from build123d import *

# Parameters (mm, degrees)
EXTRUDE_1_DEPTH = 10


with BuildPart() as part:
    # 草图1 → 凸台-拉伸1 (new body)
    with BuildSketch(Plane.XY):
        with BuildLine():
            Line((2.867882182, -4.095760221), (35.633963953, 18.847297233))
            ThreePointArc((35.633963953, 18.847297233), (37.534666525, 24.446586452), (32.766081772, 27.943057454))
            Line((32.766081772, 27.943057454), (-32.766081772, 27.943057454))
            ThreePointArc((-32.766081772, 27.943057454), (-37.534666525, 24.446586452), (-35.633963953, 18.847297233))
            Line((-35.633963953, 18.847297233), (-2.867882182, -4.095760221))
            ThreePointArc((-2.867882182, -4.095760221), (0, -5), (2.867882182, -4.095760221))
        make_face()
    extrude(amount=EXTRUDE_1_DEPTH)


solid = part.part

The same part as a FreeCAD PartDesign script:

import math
import FreeCAD as App
import Part
import Sketcher
Q = App.Units.Quantity

doc = App.newDocument("Part")
params = doc.addObject("Spreadsheet::Sheet", "Params")
for row, (alias, value) in enumerate([
    ("sketch1_radius", "5 mm"),
    ("sketch1_length", "40 mm"),
    ("pad1_length", "10 mm"),
], start=1):
    params.set(f"A{row}", alias)
    params.set(f"B{row}", "=" + value)
    params.setAlias(f"B{row}", alias)

body = doc.addObject("PartDesign::Body", "Body")

# Sketch on XY plane
sketch1 = body.newObject("Sketcher::SketchObject", "Sketch")
sketch1.AttachmentSupport = (doc.getObject("XY_Plane"), [""])
sketch1.MapMode = "FlatFace"
sketch1.addGeometry([
    Part.LineSegment(App.Vector(2.9, -4.1, 0), App.Vector(35.6, 18.8, 0)),  # 0
    Part.ArcOfCircle(Part.Circle(App.Vector(32.8, 22.9, 0), App.Vector(0, 0, 1), 5), math.radians(-55), math.radians(90)),  # 1
    Part.LineSegment(App.Vector(32.8, 27.9, 0), App.Vector(-32.8, 27.9, 0)),  # 2
    Part.ArcOfCircle(Part.Circle(App.Vector(-32.8, 22.9, 0), App.Vector(0, 0, 1), 5), math.radians(90), math.radians(235)),  # 3
    Part.LineSegment(App.Vector(-35.6, 18.8, 0), App.Vector(-2.9, -4.1, 0)),  # 4
    Part.ArcOfCircle(Part.Circle(App.Vector(0, 0, 0), App.Vector(0, 0, 1), 5), math.radians(-125), math.radians(-55)),  # 5
], False)
sketch1.addConstraint([
    Sketcher.Constraint("Tangent", 0, 2, 1, 1),
    Sketcher.Constraint("Tangent", 1, 2, 2, 1),
    Sketcher.Constraint("Tangent", 2, 2, 3, 1),
    Sketcher.Constraint("Tangent", 3, 2, 4, 1),
    Sketcher.Constraint("Tangent", 4, 2, 5, 1),
    Sketcher.Constraint("Tangent", 5, 2, 0, 1),
    Sketcher.Constraint("Horizontal", 2),
    Sketcher.Constraint("Coincident", 5, 3, -1, 1),
    Sketcher.Constraint("Equal", 1, 3),
    Sketcher.Constraint("Equal", 3, 5),
    Sketcher.Constraint("Horizontal", 0, 2, 3, 2),
    Sketcher.Constraint("Radius", 1, 5.0),
    Sketcher.Constraint("Angle", 0, Q("35 deg")),
    Sketcher.Constraint("Distance", 0, 40.0),
])
sketch1.setExpression("Constraints[11]", "Params.sketch1_radius")
sketch1.setExpression("Constraints[13]", "Params.sketch1_length")
pad1 = body.newObject("PartDesign::Pad", "Pad")
pad1.Profile = sketch1
pad1.setExpression("Length", "Params.pad1_length")

doc.recompute()
